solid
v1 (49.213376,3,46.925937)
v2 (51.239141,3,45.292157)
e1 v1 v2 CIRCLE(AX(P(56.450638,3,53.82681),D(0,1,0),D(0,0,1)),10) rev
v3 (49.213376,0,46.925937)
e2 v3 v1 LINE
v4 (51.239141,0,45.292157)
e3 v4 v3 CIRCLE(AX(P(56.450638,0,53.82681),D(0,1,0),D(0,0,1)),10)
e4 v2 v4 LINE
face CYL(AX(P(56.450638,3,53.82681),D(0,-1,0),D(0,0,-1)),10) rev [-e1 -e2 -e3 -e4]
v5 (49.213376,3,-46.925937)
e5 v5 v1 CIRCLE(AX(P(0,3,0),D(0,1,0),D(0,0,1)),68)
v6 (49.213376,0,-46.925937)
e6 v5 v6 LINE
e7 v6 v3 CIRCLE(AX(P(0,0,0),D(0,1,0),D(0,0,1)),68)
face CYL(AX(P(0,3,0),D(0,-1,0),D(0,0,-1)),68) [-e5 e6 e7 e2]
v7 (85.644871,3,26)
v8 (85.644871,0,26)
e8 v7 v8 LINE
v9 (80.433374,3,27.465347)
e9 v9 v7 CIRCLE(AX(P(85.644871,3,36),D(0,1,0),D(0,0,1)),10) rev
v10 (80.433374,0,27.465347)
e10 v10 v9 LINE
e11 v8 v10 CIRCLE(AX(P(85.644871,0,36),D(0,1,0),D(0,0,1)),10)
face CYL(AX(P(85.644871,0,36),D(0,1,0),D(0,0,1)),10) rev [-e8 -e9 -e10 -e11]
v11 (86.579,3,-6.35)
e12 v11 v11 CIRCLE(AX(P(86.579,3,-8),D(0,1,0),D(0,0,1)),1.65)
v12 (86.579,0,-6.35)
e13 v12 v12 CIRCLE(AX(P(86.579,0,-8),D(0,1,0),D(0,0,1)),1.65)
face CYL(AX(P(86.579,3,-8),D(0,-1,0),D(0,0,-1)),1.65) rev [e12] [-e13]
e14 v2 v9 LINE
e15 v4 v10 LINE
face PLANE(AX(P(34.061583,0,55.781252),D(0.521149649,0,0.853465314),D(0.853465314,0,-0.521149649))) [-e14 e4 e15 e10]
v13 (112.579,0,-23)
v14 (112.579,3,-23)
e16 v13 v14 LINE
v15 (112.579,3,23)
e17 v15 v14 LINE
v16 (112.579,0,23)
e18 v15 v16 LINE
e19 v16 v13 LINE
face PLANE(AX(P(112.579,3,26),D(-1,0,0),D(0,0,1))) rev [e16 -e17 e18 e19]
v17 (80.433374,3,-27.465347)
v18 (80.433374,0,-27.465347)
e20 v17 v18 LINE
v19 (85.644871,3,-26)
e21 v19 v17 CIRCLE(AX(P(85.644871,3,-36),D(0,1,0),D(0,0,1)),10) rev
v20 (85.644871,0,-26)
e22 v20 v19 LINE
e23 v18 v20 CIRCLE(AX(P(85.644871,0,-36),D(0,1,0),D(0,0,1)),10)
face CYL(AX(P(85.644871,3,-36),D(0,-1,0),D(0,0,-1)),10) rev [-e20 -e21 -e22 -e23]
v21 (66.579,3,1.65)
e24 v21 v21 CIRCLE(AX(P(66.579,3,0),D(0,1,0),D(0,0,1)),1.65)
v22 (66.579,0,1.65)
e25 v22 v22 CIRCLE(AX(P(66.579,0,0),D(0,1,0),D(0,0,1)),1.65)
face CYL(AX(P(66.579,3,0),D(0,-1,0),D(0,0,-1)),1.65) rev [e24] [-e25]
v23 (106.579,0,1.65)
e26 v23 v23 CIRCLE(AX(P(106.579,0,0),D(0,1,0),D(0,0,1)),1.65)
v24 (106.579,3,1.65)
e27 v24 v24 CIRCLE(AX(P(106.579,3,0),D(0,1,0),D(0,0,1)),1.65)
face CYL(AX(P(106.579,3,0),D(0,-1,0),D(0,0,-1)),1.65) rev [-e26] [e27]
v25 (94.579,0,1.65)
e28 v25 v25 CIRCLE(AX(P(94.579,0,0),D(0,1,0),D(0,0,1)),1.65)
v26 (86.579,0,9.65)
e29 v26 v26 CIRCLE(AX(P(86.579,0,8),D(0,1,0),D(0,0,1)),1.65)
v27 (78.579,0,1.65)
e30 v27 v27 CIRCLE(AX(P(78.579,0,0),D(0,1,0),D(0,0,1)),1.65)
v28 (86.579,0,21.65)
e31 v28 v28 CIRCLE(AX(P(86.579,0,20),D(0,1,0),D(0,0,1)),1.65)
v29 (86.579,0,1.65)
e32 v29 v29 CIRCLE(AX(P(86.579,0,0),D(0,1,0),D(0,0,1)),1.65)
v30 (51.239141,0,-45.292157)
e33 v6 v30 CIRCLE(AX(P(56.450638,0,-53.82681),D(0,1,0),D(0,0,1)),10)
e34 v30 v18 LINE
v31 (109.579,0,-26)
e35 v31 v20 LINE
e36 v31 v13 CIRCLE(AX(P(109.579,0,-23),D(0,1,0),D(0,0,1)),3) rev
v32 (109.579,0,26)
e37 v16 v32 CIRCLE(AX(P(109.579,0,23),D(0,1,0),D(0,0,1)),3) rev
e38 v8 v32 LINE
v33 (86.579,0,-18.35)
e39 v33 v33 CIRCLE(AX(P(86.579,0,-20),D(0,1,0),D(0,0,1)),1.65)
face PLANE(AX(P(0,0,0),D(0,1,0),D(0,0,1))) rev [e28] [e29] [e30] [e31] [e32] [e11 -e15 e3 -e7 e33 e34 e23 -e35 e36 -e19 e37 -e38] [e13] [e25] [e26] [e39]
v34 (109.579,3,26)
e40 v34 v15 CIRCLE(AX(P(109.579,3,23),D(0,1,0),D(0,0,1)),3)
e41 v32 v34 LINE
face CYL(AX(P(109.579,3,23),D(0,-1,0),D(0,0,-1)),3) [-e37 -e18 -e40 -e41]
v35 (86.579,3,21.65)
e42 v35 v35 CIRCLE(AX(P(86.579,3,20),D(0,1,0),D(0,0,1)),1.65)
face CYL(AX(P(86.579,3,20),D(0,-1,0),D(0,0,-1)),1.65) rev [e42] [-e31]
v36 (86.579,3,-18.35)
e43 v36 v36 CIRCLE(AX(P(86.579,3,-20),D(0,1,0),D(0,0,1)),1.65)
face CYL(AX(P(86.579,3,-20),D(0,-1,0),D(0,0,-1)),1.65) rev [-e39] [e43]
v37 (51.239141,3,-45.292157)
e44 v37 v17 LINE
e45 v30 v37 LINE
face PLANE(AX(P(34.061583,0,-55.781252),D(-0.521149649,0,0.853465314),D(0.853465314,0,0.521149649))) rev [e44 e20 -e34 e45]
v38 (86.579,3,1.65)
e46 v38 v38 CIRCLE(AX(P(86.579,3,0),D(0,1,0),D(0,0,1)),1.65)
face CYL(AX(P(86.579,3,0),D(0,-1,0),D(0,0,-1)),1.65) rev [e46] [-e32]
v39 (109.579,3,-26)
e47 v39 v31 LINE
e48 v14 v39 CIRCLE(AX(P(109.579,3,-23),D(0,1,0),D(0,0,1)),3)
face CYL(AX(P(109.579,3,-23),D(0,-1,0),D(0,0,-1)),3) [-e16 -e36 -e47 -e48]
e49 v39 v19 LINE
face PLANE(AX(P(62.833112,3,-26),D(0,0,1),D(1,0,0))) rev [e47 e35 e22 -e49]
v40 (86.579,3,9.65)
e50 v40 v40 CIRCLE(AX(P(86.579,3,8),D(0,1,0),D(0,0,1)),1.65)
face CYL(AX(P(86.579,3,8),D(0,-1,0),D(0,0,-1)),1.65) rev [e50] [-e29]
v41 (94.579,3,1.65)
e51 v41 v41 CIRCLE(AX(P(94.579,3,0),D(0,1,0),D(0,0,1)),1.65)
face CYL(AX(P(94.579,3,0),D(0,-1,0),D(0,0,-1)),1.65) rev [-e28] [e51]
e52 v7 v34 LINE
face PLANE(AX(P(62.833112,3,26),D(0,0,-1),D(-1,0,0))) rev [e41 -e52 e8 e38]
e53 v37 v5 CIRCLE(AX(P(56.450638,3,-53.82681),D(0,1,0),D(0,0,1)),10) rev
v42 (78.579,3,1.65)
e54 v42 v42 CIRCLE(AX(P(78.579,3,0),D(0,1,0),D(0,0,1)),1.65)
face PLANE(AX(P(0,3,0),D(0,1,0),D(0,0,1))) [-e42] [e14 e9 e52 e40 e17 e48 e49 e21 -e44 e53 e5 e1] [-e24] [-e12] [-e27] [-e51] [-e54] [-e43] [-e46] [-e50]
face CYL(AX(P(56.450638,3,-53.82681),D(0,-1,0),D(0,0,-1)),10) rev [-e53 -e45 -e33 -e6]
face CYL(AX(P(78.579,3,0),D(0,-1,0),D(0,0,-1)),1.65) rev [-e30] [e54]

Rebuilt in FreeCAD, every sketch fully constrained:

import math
import FreeCAD as App
import Part
import Sketcher
Q = App.Units.Quantity


def edges_at(feature, points):
    """Names of the edges that pass closest to the given points."""
    edges = feature.Shape.Edges
    near = lambda p: min(range(len(edges)), key=lambda i: edges[i].distToShape(Part.Vertex(*p))[0])
    return sorted({f"Edge{near(p) + 1}" for p in points})

doc = App.newDocument("Part")
body = doc.addObject("PartDesign::Body", "Body")

# Sketch on XZ plane
sketch1 = body.newObject("Sketcher::SketchObject", "Sketch")
sketch1.AttachmentSupport = (doc.getObject("XZ_Plane"), [""])
sketch1.MapMode = "FlatFace"
sketch1.addGeometry(Part.LineSegment(App.Vector(62.8, 26, 0), App.Vector(112.6, 26, 0)), False)
sketch1.addGeometry(Part.LineSegment(App.Vector(112.6, 26, 0), App.Vector(112.6, -26, 0)), False)
sketch1.addGeometry(Part.LineSegment(App.Vector(112.6, -26, 0), App.Vector(62.8, -26, 0)), False)
sketch1.addGeometry(Part.ArcOfCircle(Part.Circle(App.Vector(0, 0, 0), App.Vector(0, 0, 1), 68), math.radians(22), math.radians(338)), False)
sketch1.addGeometry(Part.Circle(App.Vector(86.6, 20, 0), App.Vector(0, 0, 1), 1.6), False)
sketch1.addGeometry(Part.Circle(App.Vector(86.6, 8, 0), App.Vector(0, 0, 1), 1.6), False)
sketch1.addGeometry(Part.Circle(App.Vector(66.6, 0, 0), App.Vector(0, 0, 1), 1.6), False)
sketch1.addGeometry(Part.Circle(App.Vector(78.6, 0, 0), App.Vector(0, 0, 1), 1.6), False)
sketch1.addGeometry(Part.Circle(App.Vector(86.6, 0, 0), App.Vector(0, 0, 1), 1.6), False)
sketch1.addGeometry(Part.Circle(App.Vector(86.6, -8, 0), App.Vector(0, 0, 1), 1.6), False)
sketch1.addGeometry(Part.Circle(App.Vector(86.6, -20, 0), App.Vector(0, 0, 1), 1.6), False)
sketch1.addGeometry(Part.Circle(App.Vector(94.6, 0, 0), App.Vector(0, 0, 1), 1.6), False)
sketch1.addGeometry(Part.Circle(App.Vector(106.6, 0, 0), App.Vector(0, 0, 1), 1.6), False)
sketch1.addConstraint(Sketcher.Constraint("Coincident", 0, 2, 1, 1))
sketch1.addConstraint(Sketcher.Constraint("Coincident", 1, 2, 2, 1))
sketch1.addConstraint(Sketcher.Constraint("Coincident", 2, 2, 3, 2))
sketch1.addConstraint(Sketcher.Constraint("Coincident", 3, 1, 0, 1))
sketch1.addConstraint(Sketcher.Constraint("Horizontal", 0))
sketch1.addConstraint(Sketcher.Constraint("Vertical", 1))
sketch1.addConstraint(Sketcher.Constraint("Horizontal", 2))
sketch1.addConstraint(Sketcher.Constraint("Coincident", 3, 3, -1, 1))
sketch1.addConstraint(Sketcher.Constraint("Equal", 4, 5))
sketch1.addConstraint(Sketcher.Constraint("Equal", 5, 6))
sketch1.addConstraint(Sketcher.Constraint("Equal", 6, 7))
sketch1.addConstraint(Sketcher.Constraint("Equal", 7, 8))
sketch1.addConstraint(Sketcher.Constraint("Equal", 8, 9))
sketch1.addConstraint(Sketcher.Constraint("Equal", 9, 10))
sketch1.addConstraint(Sketcher.Constraint("Equal", 10, 11))
sketch1.addConstraint(Sketcher.Constraint("Equal", 11, 12))
sketch1.addConstraint(Sketcher.Constraint("Symmetric", 5, 3, 9, 3, -1))
sketch1.addConstraint(Sketcher.Constraint("Symmetric", 4, 3, 10, 3, -1))
sketch1.addConstraint(Sketcher.Constraint("PointOnObject", 6, 3, -1))
sketch1.addConstraint(Sketcher.Constraint("PointOnObject", 7, 3, -1))
sketch1.addConstraint(Sketcher.Constraint("PointOnObject", 8, 3, -1))
sketch1.addConstraint(Sketcher.Constraint("PointOnObject", 11, 3, -1))
sketch1.addConstraint(Sketcher.Constraint("PointOnObject", 12, 3, -1))
sketch1.addConstraint(Sketcher.Constraint("Vertical", 4, 3, 5, 3))
sketch1.addConstraint(Sketcher.Constraint("Vertical", 5, 3, 8, 3))
sketch1.addConstraint(Sketcher.Constraint("Vertical", 2, 2, 3, 1))
sketch1.addConstraint(Sketcher.Constraint("Radius", 3, Q("68 mm")))
sketch1.addConstraint(Sketcher.Constraint("Diameter", 4, Q("3.3 mm")))
sketch1.addConstraint(Sketcher.Constraint("DistanceY", 1, 2, 1, 1, Q("52 mm")))
sketch1.addConstraint(Sketcher.Constraint("DistanceY", -1, 1, 4, 3, Q("20 mm")))
sketch1.addConstraint(Sketcher.Constraint("DistanceY", -1, 1, 5, 3, Q("8 mm")))
sketch1.addConstraint(Sketcher.Constraint("DistanceX", 6, 3, 5, 3, Q("20 mm")))
sketch1.addConstraint(Sketcher.Constraint("DistanceX", 7, 3, 5, 3, Q("8 mm")))
sketch1.addConstraint(Sketcher.Constraint("DistanceX", 8, 3, 11, 3, Q("8 mm")))
sketch1.addConstraint(Sketcher.Constraint("DistanceX", 11, 3, 12, 3, Q("12 mm")))
sketch1.addConstraint(Sketcher.Constraint("DistanceX", 4, 3, 0, 2, Q("26 mm")))
sketch1.addConstraint(Sketcher.Constraint("DistanceX", -1, 1, 4, 3, Q("86.579 mm")))
pad1 = body.newObject("PartDesign::Pad", "Pad")
pad1.Profile = sketch1
pad1.Length = 3
pad1.Reversed = True

# Sketch on XZ plane
sketch2 = body.newObject("Sketcher::SketchObject", "Sketch001")
sketch2.AttachmentSupport = (doc.getObject("XZ_Plane"), [""])
sketch2.MapMode = "FlatFace"
sketch2.addGeometry(Part.ArcOfCircle(Part.Circle(App.Vector(0, 0, 0), App.Vector(0, 0, 1), 68), math.radians(22), math.radians(43)), False)
sketch2.addGeometry(Part.LineSegment(App.Vector(50, 46, 0), App.Vector(83, 26, 0)), False)
sketch2.addGeometry(Part.LineSegment(App.Vector(83, 26, 0), App.Vector(63, 26, 0)), False)
sketch2.addGeometry(Part.LineSegment(App.Vector(63, -26, 0), App.Vector(83, -26, 0)), False)
sketch2.addGeometry(Part.LineSegment(App.Vector(83, -26, 0), App.Vector(50, -46, 0)), False)
sketch2.addGeometry(Part.ArcOfCircle(Part.Circle(App.Vector(0, 0, 0), App.Vector(0, 0, 1), 68), math.radians(-43), math.radians(-22)), False)
sketch2.addConstraint(Sketcher.Constraint("Coincident", 0, 2, 1, 1))
sketch2.addConstraint(Sketcher.Constraint("Coincident", 1, 2, 2, 1))
sketch2.addConstraint(Sketcher.Constraint("Coincident", 2, 2, 0, 1))
sketch2.addConstraint(Sketcher.Constraint("Coincident", 3, 2, 4, 1))
sketch2.addConstraint(Sketcher.Constraint("Coincident", 4, 2, 5, 1))
sketch2.addConstraint(Sketcher.Constraint("Coincident", 5, 2, 3, 1))
sketch2.addConstraint(Sketcher.Constraint("Horizontal", 2))
sketch2.addConstraint(Sketcher.Constraint("Horizontal", 3))
sketch2.addConstraint(Sketcher.Constraint("Coincident", 0, 3, -1, 1))
sketch2.addConstraint(Sketcher.Constraint("Coincident", 5, 3, -1, 1))
sketch2.addConstraint(Sketcher.Constraint("Equal", 0, 5))
sketch2.addConstraint(Sketcher.Constraint("Symmetric", 1, 2, 3, 2, -1))
sketch2.addConstraint(Sketcher.Constraint("Vertical", 0, 2, 4, 2))
sketch2.addConstraint(Sketcher.Constraint("Radius", 0, Q("68 mm")))
sketch2.addConstraint(Sketcher.Constraint("DistanceX", 2, 2, 2, 1, Q("20 mm")))
sketch2.addConstraint(Sketcher.Constraint("DistanceY", -1, 1, 0, 2, Q("46 mm")))
sketch2.addConstraint(Sketcher.Constraint("DistanceY", -1, 1, 1, 2, Q("26 mm")))
pad2 = body.newObject("PartDesign::Pad", "Pad001")
pad2.Profile = sketch2
pad2.Length = 3
pad2.Reversed = True
doc.recompute()

fillet = body.newObject("PartDesign::Fillet", "Fillet")
fillet.Base = (pad2, edges_at(pad2, [
    (50.08, 1.5, 46),
    (82.833, 1.5, 26),
    (50.08, 1.5, -46),
    (82.833, 1.5, -26),
]))
fillet.Radius = 10
doc.recompute()

fillet2 = body.newObject("PartDesign::Fillet", "Fillet001")
fillet2.Base = (fillet, edges_at(fillet, [(112.579, 1.5, -26), (112.579, 1.5, 26)]))
fillet2.Radius = 3

doc.recompute()
